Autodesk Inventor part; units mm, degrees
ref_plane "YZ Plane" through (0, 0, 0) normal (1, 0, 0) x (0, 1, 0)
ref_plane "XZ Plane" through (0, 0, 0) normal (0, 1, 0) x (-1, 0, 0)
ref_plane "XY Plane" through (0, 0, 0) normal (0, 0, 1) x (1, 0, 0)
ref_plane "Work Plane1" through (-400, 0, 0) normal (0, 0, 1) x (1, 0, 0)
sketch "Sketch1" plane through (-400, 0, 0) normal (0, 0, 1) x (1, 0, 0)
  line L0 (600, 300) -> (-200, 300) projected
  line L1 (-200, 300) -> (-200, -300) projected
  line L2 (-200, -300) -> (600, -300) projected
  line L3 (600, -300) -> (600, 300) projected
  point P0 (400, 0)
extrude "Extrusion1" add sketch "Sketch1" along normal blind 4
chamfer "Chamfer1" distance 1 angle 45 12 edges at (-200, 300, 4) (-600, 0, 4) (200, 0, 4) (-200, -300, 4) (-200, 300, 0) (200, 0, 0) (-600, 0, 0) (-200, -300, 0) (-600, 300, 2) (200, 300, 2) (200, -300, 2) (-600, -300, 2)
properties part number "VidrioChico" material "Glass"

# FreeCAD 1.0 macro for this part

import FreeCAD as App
import Part
import Sketcher
from FreeCAD import Vector

doc = App.newDocument("Part")
body = doc.addObject("PartDesign::Body", "Body")

# Sketch on XY plane
sketch1 = body.newObject("Sketcher::SketchObject", "Sketch")
sketch1.AttachmentSupport = (doc.getObject("XY_Plane"), [""])
sketch1.MapMode = "FlatFace"
sketch1.addGeometry([
    Part.LineSegment(Vector(200, -300, 0), Vector(200, 300, 0)),
    Part.LineSegment(Vector(200, 300, 0), Vector(-600, 300, 0)),
    Part.LineSegment(Vector(-600, 300, 0), Vector(-600, -300, 0)),
    Part.LineSegment(Vector(-600, -300, 0), Vector(200, -300, 0)),
], False)
sketch1.addConstraint([
    Sketcher.Constraint("Coincident", 0, 2, 1, 1),
    Sketcher.Constraint("Coincident", 1, 2, 2, 1),
    Sketcher.Constraint("Coincident", 2, 2, 3, 1),
    Sketcher.Constraint("Coincident", 3, 2, 0, 1),
    Sketcher.Constraint("Vertical", 0),
    Sketcher.Constraint("Horizontal", 1),
    Sketcher.Constraint("Vertical", 2),
    Sketcher.Constraint("Horizontal", 3),
    Sketcher.Constraint("DistanceX", 1, 2, 1, 1, 800.0),
    Sketcher.Constraint("DistanceY", 0, 1, 0, 2, 600.0),
    Sketcher.Constraint("DistanceX", -1, 1, 0, 2, 200.0),
    Sketcher.Constraint("DistanceY", -1, 1, 0, 2, 300.0),
])
pad1 = body.newObject("PartDesign::Pad", "Pad")
pad1.Profile = sketch1
pad1.Length = 4
doc.recompute()

chamfer = body.newObject("PartDesign::Chamfer", "Chamfer")
chamfer.Base = (pad1, ["Edge1"])
chamfer.UseAllEdges = True
chamfer.Size = 1

doc.recompute()
